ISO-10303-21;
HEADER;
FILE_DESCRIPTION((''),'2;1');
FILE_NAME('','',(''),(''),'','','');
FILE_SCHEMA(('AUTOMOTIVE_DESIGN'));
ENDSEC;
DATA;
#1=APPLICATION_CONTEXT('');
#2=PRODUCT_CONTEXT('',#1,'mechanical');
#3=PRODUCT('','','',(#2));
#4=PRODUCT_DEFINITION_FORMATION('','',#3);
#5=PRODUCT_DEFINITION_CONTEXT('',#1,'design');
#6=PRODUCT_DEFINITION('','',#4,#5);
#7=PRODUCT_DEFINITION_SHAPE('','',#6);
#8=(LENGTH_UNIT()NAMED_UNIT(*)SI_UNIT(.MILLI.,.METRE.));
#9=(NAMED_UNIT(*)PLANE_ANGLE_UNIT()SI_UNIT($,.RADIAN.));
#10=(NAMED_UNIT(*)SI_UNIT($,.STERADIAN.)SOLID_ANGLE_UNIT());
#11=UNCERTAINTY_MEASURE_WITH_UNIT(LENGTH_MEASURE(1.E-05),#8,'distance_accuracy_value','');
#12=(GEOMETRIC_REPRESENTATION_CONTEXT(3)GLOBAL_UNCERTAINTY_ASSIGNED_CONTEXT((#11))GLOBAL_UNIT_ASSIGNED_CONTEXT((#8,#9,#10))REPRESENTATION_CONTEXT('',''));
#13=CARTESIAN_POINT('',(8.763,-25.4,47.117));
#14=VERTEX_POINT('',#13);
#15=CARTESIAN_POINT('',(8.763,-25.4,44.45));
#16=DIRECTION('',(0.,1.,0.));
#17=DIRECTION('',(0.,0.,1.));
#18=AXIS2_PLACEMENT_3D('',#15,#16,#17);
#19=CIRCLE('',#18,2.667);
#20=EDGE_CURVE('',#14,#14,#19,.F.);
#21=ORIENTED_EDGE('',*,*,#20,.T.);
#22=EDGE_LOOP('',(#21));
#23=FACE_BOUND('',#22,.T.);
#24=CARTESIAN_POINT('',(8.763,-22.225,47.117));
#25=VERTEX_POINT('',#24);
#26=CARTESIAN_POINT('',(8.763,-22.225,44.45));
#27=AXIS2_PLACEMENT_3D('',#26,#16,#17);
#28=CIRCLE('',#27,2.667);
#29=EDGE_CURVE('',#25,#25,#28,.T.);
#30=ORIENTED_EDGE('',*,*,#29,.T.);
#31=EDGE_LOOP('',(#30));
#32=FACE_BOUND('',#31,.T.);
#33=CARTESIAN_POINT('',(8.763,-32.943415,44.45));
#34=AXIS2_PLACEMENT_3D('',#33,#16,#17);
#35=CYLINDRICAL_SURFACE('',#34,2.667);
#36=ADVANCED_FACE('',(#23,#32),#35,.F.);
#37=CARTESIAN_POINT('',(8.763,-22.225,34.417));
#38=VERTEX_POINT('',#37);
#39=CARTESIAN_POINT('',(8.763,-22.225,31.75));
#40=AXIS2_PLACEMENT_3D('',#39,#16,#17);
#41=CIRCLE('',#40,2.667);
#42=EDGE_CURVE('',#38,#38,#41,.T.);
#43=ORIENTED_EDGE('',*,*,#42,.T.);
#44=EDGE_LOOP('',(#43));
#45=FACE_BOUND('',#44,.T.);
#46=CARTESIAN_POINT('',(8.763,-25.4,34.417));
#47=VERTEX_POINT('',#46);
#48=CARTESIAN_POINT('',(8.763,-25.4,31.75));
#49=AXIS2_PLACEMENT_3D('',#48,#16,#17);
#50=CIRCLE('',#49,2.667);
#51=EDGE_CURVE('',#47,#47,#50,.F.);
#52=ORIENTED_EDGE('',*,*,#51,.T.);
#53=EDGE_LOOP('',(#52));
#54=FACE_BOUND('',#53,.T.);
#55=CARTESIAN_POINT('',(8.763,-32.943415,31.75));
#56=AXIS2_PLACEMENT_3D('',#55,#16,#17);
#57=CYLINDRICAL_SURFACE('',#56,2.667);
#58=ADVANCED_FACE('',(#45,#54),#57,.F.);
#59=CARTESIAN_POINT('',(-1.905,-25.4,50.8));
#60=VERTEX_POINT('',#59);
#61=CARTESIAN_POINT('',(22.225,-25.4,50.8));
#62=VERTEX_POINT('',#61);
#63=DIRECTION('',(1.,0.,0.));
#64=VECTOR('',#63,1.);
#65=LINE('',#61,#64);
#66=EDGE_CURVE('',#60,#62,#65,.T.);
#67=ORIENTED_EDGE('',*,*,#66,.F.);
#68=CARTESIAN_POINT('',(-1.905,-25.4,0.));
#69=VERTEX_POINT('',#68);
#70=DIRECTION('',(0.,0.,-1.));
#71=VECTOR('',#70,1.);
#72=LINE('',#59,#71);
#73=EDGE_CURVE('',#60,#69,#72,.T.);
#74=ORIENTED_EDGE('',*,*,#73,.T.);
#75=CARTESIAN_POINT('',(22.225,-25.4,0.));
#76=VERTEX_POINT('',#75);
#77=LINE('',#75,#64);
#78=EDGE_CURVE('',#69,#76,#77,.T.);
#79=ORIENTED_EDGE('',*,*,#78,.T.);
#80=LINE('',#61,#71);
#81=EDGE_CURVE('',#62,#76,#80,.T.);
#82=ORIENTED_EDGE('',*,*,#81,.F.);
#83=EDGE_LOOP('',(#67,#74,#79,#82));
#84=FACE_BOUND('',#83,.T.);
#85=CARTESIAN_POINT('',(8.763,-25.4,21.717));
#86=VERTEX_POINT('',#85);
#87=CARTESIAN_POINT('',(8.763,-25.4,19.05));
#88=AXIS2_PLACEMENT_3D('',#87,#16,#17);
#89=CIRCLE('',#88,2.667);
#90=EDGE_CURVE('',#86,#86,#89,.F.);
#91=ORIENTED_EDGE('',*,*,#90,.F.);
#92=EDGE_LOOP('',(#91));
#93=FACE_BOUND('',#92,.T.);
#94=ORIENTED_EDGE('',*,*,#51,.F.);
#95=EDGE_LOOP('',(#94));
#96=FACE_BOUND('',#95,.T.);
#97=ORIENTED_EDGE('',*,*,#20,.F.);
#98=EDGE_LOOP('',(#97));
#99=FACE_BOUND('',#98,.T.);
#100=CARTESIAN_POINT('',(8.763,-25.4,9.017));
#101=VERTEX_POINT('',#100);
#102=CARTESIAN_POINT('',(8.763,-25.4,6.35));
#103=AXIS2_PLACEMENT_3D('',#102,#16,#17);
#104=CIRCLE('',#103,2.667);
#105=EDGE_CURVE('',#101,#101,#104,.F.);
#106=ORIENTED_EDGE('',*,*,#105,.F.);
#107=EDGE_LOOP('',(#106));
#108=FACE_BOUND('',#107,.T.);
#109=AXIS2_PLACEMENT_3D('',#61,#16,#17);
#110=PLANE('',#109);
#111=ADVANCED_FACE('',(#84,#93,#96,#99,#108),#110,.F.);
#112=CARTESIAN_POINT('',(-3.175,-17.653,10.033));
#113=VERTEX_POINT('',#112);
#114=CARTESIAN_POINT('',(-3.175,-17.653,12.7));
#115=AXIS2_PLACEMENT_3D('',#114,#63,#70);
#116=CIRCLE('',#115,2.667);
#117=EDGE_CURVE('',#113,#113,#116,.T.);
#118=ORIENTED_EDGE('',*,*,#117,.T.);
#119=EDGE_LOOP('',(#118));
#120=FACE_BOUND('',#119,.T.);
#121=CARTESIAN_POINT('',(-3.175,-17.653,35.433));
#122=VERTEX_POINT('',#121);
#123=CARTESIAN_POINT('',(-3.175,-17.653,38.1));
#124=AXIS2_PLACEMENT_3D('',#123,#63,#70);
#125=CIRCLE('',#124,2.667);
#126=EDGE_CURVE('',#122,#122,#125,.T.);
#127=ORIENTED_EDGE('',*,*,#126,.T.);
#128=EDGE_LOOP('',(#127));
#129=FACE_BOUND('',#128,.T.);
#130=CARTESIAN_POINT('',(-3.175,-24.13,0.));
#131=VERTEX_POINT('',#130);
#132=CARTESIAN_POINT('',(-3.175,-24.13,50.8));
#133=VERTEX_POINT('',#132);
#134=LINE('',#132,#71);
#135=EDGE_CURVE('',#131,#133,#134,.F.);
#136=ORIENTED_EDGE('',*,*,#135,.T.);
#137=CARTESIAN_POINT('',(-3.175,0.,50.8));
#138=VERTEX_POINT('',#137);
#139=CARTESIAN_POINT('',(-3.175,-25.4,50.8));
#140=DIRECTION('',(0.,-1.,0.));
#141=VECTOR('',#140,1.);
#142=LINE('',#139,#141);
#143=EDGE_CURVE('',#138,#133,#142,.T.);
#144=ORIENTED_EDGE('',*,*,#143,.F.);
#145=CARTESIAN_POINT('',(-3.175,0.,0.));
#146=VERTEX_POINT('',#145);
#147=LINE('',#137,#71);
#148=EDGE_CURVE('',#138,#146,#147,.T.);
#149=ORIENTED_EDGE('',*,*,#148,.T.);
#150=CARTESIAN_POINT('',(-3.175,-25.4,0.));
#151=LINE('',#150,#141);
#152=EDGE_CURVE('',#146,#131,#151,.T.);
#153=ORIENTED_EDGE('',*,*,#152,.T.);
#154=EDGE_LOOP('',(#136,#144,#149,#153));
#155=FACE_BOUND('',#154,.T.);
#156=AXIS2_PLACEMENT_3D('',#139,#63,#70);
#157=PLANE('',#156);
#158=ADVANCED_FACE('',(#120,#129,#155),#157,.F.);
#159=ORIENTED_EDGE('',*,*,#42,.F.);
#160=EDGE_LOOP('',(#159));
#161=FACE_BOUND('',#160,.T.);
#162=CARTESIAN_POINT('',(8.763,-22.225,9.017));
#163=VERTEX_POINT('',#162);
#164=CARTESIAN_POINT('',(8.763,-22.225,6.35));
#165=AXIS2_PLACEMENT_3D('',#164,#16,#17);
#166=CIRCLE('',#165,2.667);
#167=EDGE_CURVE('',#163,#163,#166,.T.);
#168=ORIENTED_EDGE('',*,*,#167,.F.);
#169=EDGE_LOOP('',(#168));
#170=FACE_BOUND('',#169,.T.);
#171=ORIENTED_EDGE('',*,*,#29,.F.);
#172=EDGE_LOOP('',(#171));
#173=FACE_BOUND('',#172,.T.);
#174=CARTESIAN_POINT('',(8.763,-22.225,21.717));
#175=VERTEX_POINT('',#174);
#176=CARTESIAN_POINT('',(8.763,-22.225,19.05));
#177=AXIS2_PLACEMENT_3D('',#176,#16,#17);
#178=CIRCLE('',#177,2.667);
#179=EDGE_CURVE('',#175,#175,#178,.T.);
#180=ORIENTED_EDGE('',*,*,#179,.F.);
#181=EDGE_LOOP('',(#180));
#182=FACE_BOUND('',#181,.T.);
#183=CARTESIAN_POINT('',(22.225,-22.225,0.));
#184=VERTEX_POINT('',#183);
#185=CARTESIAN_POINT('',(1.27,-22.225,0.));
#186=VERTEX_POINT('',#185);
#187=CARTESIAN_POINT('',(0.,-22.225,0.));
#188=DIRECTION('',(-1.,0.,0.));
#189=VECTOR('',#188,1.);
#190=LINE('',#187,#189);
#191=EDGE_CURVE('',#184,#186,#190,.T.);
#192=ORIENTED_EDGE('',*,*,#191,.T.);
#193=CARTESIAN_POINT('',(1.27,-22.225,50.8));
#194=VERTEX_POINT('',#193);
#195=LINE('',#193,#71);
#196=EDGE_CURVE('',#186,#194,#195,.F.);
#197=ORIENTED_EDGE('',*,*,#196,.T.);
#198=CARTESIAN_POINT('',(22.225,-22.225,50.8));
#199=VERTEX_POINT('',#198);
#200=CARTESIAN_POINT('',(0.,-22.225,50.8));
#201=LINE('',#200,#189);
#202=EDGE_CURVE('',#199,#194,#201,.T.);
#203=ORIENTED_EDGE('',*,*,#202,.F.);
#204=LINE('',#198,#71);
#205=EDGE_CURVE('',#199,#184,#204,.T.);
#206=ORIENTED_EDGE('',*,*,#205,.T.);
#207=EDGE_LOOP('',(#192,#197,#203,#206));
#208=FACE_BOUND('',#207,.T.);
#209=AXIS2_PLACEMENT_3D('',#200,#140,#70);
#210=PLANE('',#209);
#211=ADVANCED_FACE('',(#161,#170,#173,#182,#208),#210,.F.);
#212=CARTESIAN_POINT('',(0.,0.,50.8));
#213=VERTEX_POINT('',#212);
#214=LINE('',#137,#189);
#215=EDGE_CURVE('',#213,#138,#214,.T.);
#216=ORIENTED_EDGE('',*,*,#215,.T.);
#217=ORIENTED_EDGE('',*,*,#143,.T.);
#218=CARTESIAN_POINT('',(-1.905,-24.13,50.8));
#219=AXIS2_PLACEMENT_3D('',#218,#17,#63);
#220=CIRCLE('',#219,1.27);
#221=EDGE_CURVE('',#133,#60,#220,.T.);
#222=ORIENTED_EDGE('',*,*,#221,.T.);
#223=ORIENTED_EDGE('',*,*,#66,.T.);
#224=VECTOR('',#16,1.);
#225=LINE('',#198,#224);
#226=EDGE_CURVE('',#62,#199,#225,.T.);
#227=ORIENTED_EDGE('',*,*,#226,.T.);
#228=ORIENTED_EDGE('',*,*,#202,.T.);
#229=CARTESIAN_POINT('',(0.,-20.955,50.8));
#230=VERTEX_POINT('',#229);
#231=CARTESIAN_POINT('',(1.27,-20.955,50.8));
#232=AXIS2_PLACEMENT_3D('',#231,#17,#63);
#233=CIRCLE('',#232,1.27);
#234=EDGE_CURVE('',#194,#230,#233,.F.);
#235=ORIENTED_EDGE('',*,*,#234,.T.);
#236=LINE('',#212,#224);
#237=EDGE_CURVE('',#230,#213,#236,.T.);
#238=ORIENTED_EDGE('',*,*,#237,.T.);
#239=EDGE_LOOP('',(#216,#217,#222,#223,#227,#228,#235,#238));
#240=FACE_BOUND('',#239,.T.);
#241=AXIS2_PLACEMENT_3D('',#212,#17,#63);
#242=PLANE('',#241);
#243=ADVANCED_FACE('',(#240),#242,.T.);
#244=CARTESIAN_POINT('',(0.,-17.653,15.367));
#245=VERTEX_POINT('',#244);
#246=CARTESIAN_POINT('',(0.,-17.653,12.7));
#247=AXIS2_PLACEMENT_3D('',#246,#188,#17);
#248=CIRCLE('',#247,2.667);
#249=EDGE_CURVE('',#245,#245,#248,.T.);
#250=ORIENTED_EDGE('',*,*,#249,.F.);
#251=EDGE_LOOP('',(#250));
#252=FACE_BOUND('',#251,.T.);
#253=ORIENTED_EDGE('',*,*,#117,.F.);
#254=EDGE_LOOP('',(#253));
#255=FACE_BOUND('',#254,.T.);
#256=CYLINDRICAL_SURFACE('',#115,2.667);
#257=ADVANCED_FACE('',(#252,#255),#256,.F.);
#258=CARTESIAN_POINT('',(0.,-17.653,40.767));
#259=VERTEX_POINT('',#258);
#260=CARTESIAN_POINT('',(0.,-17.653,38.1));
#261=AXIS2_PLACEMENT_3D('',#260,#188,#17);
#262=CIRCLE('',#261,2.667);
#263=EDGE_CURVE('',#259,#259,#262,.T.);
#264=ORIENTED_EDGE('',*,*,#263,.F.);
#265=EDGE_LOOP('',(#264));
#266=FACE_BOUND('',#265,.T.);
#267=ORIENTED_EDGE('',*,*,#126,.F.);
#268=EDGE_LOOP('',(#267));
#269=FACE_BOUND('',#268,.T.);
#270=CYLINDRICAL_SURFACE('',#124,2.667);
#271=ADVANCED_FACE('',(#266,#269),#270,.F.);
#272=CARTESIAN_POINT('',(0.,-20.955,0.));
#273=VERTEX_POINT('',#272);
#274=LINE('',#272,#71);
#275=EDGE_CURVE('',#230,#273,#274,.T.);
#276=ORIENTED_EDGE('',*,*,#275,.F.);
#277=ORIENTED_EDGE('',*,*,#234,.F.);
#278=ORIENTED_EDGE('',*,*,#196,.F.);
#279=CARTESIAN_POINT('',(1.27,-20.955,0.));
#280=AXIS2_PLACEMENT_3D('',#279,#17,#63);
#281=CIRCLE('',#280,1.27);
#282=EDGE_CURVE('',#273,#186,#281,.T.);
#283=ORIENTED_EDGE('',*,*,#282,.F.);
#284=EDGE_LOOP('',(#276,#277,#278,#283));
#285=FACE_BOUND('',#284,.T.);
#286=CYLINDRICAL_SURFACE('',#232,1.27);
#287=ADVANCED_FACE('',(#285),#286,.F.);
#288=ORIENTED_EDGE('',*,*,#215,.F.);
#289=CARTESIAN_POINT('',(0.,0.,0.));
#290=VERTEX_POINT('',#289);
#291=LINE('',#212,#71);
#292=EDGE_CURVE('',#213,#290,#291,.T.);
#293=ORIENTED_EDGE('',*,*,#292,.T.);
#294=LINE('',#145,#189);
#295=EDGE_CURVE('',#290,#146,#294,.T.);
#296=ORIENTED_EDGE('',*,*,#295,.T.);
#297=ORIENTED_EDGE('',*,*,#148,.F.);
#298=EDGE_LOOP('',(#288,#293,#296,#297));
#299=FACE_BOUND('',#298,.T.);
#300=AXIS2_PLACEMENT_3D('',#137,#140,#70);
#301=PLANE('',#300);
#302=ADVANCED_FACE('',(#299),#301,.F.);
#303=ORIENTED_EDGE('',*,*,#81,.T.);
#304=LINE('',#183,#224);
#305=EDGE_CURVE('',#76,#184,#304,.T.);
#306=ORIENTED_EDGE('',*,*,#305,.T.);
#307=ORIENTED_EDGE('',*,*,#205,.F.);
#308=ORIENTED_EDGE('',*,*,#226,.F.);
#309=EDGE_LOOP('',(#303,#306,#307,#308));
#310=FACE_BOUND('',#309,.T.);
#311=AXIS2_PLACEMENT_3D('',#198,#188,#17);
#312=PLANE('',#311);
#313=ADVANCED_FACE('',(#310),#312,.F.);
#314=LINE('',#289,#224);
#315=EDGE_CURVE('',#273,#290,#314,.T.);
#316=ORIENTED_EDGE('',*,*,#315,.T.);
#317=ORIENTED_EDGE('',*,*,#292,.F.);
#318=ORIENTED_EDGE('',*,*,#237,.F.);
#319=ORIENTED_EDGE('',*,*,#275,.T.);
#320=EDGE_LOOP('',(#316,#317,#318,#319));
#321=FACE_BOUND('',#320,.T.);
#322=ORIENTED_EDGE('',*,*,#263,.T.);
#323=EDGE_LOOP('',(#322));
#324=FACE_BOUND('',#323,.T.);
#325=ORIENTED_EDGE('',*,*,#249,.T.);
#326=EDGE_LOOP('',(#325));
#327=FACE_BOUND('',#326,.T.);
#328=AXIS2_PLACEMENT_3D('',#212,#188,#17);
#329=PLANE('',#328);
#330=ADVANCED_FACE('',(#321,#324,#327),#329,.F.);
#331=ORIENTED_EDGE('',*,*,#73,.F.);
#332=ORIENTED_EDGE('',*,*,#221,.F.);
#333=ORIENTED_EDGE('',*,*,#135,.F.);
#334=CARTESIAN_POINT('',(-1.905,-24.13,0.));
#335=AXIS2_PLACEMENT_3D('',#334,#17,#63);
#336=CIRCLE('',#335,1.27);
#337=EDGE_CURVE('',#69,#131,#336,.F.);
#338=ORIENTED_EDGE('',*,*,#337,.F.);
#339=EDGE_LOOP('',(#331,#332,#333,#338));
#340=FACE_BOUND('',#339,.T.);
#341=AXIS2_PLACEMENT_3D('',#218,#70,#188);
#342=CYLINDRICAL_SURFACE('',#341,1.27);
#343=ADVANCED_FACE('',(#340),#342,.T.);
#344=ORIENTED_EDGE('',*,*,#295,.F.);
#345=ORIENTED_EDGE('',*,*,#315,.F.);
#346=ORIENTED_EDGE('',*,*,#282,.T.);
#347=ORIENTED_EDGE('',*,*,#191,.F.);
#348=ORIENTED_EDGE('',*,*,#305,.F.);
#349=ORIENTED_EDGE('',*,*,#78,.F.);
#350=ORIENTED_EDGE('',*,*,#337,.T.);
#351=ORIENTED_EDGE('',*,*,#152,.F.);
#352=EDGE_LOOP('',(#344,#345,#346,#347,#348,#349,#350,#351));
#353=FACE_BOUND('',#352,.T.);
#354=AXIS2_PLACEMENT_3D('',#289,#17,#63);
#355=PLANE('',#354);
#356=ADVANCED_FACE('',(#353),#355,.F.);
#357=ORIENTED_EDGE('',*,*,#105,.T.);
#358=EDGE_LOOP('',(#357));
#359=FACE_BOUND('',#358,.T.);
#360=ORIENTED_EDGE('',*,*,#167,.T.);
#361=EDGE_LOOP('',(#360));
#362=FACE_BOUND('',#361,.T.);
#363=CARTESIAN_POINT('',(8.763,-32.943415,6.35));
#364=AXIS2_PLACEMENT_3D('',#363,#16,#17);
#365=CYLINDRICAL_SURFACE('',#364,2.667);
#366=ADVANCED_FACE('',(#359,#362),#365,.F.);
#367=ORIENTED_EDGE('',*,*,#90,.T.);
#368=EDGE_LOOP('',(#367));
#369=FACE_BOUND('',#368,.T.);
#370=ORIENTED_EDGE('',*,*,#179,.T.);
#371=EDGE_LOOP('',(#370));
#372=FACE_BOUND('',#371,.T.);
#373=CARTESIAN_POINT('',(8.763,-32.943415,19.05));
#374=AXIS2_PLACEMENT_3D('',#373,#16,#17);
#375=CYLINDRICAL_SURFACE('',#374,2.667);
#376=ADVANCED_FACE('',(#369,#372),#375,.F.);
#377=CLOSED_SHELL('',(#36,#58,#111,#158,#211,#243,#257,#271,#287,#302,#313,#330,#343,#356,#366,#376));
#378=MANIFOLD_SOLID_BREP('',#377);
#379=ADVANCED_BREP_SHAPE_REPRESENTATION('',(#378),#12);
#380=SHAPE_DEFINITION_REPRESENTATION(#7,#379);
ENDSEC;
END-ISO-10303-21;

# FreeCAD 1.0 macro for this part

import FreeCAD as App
import Part
import Sketcher
from FreeCAD import Vector
Q = App.Units.Quantity


def edges_at(feature, points):
    """Names of the edges that pass closest to the given points."""
    edges = feature.Shape.Edges
    near = lambda p: min(range(len(edges)), key=lambda i: edges[i].distToShape(Part.Vertex(*p))[0])
    return sorted({f"Edge{near(p) + 1}" for p in points})


def add_polygon(sketch, points):
    """Adds a closed chain of lines whose ends are joined by coincident constraints."""
    first, n = sketch.GeometryCount, len(points)
    for a, b in zip(points, points[1:] + points[:1]):
        sketch.addGeometry(Part.LineSegment(App.Vector(*a, 0), App.Vector(*b, 0)), False)
    for i in range(n):
        sketch.addConstraint(Sketcher.Constraint("Coincident", first + i, 2, first + (i + 1) % n, 1))

doc = App.newDocument("Part")
body = doc.addObject("PartDesign::Body", "Body")

sketch1 = doc.addObject("Sketcher::SketchObject", "Sketch")
body.addObject(sketch1)
sketch1.AttachmentSupport = (doc.XY_Plane, [""])
sketch1.MapMode = "FlatFace"
add_polygon(sketch1, [(22.225, -22.225), (0, -22.225), (0, 0), (-3.175, 0), (-3.175, -25.4), (22.225, -25.4)])
sketch1.addConstraint([
    Sketcher.Constraint("Horizontal", 0),
    Sketcher.Constraint("Vertical", 1),
    Sketcher.Constraint("Horizontal", 2),
    Sketcher.Constraint("Vertical", 3),
    Sketcher.Constraint("Horizontal", 4),
    Sketcher.Constraint("Vertical", 5),
    Sketcher.Constraint("Coincident", 1, 2, -1, 1),
    Sketcher.Constraint("Equal", 0, 1),
    Sketcher.Constraint("Equal", 4, 3),
    Sketcher.Constraint("DistanceX", 4, 1, 4, 2, Q("1 in")),
    Sketcher.Constraint("DistanceX", 0, 2, 0, 1, Q("0.875 in")),
])
pad1 = doc.addObject("PartDesign::Pad", "Pad")
body.addObject(pad1)
pad1.Profile = sketch1
pad1.Length = Q("2 in")

sketch2 = doc.addObject("Sketcher::SketchObject", "Sketch001")
body.addObject(sketch2)
sketch2.AttachmentSupport = (doc.YZ_Plane, [""])
sketch2.MapMode = "FlatFace"
sketch2.addGeometry([
    Part.Circle(Vector(-17.653, 38.1, 0), Vector(0, 0, 1), 2.667),
    Part.Circle(Vector(-17.653, 12.7, 0), Vector(0, 0, 1), 2.667),
], False)
sketch2.addConstraint([
    Sketcher.Constraint("Equal", 0, 1),
    Sketcher.Constraint("Vertical", 0, 3, 1, 3),
    Sketcher.Constraint("Diameter", 0, Q("0.21 in")),
    Sketcher.Constraint("DistanceY", 1, 3, 0, 3, Q("1 in")),
    Sketcher.Constraint("DistanceY", -1, 1, 0, 3, Q("1.5 in")),
    Sketcher.Constraint("DistanceX", 0, 3, -1, 1, Q("0.695 in")),
])
pocket1 = doc.addObject("PartDesign::Pocket", "Pocket")
body.addObject(pocket1)
pocket1.Profile = sketch2
pocket1.Type = "ThroughAll"
pocket1.Midplane = True

sketch3 = doc.addObject("Sketcher::SketchObject", "Sketch002")
body.addObject(sketch3)
sketch3.AttachmentSupport = (doc.XZ_Plane, [""])
sketch3.MapMode = "FlatFace"
sketch3.AttachmentOffset = App.Placement(Vector(0, 0, 0.875 * 25.4), App.Rotation())
sketch3.addGeometry([
    Part.Circle(Vector(8.763, 44.45, 0), Vector(0, 0, 1), 2.667),
    Part.Circle(Vector(8.763, 31.75, 0), Vector(0, 0, 1), 2.667),
    Part.Circle(Vector(8.763, 19.05, 0), Vector(0, 0, 1), 2.667),
    Part.Circle(Vector(8.763, 6.35, 0), Vector(0, 0, 1), 2.667),
], False)
sketch3.addConstraint([
    Sketcher.Constraint("Equal", 0, 1),
    Sketcher.Constraint("Equal", 1, 2),
    Sketcher.Constraint("Equal", 2, 3),
    Sketcher.Constraint("Vertical", 0, 3, 1, 3),
    Sketcher.Constraint("Vertical", 1, 3, 2, 3),
    Sketcher.Constraint("Vertical", 2, 3, 3, 3),
    Sketcher.Constraint("Diameter", 0, Q("0.21 in")),
    Sketcher.Constraint("DistanceY", 2, 3, 0, 3, Q("1 in")),
    Sketcher.Constraint("DistanceY", 3, 3, 1, 3, Q("1 in")),
    Sketcher.Constraint("DistanceY", 1, 3, 0, 3, Q("0.5 in")),
    Sketcher.Constraint("DistanceY", -1, 1, 0, 3, Q("1.75 in")),
    Sketcher.Constraint("DistanceX", -1, 1, 0, 3, Q("0.345 in")),
])
pocket2 = doc.addObject("PartDesign::Pocket", "Pocket001")
body.addObject(pocket2)
pocket2.Profile = sketch3
pocket2.Length = Q("0.125 in")
pocket2.Reversed = True
doc.recompute()

fillet = doc.addObject("PartDesign::Fillet", "Fillet")
body.addObject(fillet)
fillet.Base = (pocket2, edges_at(pocket2, [(0, -22.225, 25.4)]))
fillet.Radius = Q("0.05 in")
doc.recompute()

fillet2 = doc.addObject("PartDesign::Fillet", "Fillet001")
body.addObject(fillet2)
fillet2.Base = (fillet, edges_at(fillet, [(-3.175, -25.4, 25.4)]))
fillet2.Radius = Q("0.05 in")

doc.recompute()
